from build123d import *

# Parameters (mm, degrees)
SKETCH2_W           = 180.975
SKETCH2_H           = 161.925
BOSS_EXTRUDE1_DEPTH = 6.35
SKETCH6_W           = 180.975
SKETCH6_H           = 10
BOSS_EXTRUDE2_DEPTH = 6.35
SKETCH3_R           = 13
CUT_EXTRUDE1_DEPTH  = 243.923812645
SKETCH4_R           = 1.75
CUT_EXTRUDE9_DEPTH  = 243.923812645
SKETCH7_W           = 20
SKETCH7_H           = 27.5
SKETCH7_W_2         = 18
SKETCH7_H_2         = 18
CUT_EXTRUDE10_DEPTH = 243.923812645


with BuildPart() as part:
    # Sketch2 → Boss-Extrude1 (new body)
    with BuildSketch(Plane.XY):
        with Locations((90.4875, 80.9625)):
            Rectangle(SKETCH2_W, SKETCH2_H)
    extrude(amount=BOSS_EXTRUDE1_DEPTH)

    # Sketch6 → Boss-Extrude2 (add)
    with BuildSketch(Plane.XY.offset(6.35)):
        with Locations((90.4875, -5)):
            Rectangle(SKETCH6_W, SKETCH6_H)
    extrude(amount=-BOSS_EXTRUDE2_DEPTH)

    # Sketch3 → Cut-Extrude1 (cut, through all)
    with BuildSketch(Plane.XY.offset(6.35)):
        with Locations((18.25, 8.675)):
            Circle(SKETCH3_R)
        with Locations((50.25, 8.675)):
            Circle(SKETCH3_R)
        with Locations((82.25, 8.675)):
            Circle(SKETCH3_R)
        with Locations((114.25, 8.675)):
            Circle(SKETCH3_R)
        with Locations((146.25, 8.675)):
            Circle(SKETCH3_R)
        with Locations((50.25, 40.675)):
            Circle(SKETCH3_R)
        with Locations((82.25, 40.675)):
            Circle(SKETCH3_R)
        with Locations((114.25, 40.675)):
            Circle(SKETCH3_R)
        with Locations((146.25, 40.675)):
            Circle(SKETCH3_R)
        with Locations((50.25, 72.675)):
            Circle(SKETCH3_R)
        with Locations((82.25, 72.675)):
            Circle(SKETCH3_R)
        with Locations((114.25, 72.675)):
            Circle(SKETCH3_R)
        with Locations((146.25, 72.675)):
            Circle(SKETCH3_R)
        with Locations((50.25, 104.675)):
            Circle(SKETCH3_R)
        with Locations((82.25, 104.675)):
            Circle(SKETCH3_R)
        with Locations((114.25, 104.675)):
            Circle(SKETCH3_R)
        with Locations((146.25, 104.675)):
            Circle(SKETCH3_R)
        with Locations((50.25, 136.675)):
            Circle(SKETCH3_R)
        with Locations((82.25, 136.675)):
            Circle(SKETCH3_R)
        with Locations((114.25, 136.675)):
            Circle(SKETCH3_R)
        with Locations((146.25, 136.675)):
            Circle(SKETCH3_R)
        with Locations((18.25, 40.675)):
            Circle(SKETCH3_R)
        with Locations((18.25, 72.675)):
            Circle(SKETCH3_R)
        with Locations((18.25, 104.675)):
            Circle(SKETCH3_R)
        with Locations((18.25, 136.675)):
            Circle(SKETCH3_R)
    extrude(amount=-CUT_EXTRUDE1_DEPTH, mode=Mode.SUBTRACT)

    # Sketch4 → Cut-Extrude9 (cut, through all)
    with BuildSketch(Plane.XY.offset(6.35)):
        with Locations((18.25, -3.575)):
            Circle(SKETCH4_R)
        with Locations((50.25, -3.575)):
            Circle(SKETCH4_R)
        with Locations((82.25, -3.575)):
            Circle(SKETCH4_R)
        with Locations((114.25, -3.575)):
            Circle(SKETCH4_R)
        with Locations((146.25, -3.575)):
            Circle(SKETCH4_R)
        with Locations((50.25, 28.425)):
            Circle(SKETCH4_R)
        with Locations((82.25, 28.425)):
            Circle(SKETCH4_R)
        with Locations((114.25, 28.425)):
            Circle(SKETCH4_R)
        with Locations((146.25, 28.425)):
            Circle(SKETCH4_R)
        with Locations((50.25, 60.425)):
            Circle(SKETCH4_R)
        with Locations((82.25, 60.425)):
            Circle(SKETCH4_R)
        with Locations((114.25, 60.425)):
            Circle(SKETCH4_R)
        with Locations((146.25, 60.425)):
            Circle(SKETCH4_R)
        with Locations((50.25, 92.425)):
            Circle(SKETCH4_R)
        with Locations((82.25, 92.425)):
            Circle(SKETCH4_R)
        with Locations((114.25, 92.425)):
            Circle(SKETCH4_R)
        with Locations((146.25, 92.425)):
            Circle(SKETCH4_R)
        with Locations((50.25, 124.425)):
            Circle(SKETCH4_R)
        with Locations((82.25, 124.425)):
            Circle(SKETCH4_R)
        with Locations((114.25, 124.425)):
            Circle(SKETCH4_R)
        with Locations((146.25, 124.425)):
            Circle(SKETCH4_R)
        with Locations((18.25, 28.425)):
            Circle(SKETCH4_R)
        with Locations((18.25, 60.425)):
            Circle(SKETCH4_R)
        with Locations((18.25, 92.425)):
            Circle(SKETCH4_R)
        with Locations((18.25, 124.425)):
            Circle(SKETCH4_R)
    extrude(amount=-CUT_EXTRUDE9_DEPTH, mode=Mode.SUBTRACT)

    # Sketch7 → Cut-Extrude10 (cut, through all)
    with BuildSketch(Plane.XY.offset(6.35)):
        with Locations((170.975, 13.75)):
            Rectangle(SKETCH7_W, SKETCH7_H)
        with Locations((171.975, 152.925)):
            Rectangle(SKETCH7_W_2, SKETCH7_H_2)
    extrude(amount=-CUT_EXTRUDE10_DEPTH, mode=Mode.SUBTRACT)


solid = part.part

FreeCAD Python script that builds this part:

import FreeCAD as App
import Part
import Sketcher

doc = App.newDocument("Part")
body = doc.addObject("PartDesign::Body", "Body")

# Sketch on XY plane
sketch1 = body.newObject("Sketcher::SketchObject", "Sketch")
sketch1.AttachmentSupport = (doc.getObject("XY_Plane"), [""])
sketch1.MapMode = "FlatFace"
sketch1.addGeometry(Part.LineSegment(App.Vector(0, 162, 0), App.Vector(0, 0, 0)), False)
sketch1.addGeometry(Part.LineSegment(App.Vector(0, 0, 0), App.Vector(181, 0, 0)), False)
sketch1.addGeometry(Part.LineSegment(App.Vector(181, 0, 0), App.Vector(181, 162, 0)), False)
sketch1.addGeometry(Part.LineSegment(App.Vector(181, 162, 0), App.Vector(0, 162, 0)), False)
sketch1.addConstraint(Sketcher.Constraint("Coincident", 0, 2, 1, 1))
sketch1.addConstraint(Sketcher.Constraint("Coincident", 1, 2, 2, 1))
sketch1.addConstraint(Sketcher.Constraint("Coincident", 2, 2, 3, 1))
sketch1.addConstraint(Sketcher.Constraint("Coincident", 3, 2, 0, 1))
sketch1.addConstraint(Sketcher.Constraint("Vertical", 0))
sketch1.addConstraint(Sketcher.Constraint("Horizontal", 1))
sketch1.addConstraint(Sketcher.Constraint("Vertical", 2))
sketch1.addConstraint(Sketcher.Constraint("Horizontal", 3))
sketch1.addConstraint(Sketcher.Constraint("Coincident", 0, 2, -1, 1))
sketch1.addConstraint(Sketcher.Constraint("DistanceX", 1, 1, 1, 2, 180.975))
sketch1.addConstraint(Sketcher.Constraint("DistanceY", 0, 2, 0, 1, 161.925))
pad1 = body.newObject("PartDesign::Pad", "Pad")
pad1.Profile = sketch1
pad1.Length = 6.35

# Sketch on XY plane
sketch2 = body.newObject("Sketcher::SketchObject", "Sketch001")
sketch2.AttachmentSupport = (doc.getObject("XY_Plane"), [""])
sketch2.MapMode = "FlatFace"
sketch2.AttachmentOffset = App.Placement(App.Vector(0, 0, 6.35), App.Rotation())
sketch2.addGeometry(Part.LineSegment(App.Vector(0, 0, 0), App.Vector(0, -10, 0)), False)
sketch2.addGeometry(Part.LineSegment(App.Vector(0, -10, 0), App.Vector(181, -10, 0)), False)
sketch2.addGeometry(Part.LineSegment(App.Vector(181, -10, 0), App.Vector(181, 0, 0)), False)
sketch2.addGeometry(Part.LineSegment(App.Vector(181, 0, 0), App.Vector(0, 0, 0)), False)
sketch2.addConstraint(Sketcher.Constraint("Coincident", 0, 2, 1, 1))
sketch2.addConstraint(Sketcher.Constraint("Coincident", 1, 2, 2, 1))
sketch2.addConstraint(Sketcher.Constraint("Coincident", 2, 2, 3, 1))
sketch2.addConstraint(Sketcher.Constraint("Coincident", 3, 2, 0, 1))
sketch2.addConstraint(Sketcher.Constraint("Vertical", 0))
sketch2.addConstraint(Sketcher.Constraint("Horizontal", 1))
sketch2.addConstraint(Sketcher.Constraint("Vertical", 2))
sketch2.addConstraint(Sketcher.Constraint("Horizontal", 3))
sketch2.addConstraint(Sketcher.Constraint("Coincident", 3, 2, -1, 1))
sketch2.addConstraint(Sketcher.Constraint("DistanceY", 0, 2, 0, 1, 10.0))
sketch2.addConstraint(Sketcher.Constraint("DistanceX", 1, 1, 1, 2, 180.975))
pad2 = body.newObject("PartDesign::Pad", "Pad001")
pad2.Profile = sketch2
pad2.Length = 6.35
pad2.Reversed = True

# Sketch on XY plane
sketch3 = body.newObject("Sketcher::SketchObject", "Sketch002")
sketch3.AttachmentSupport = (doc.getObject("XY_Plane"), [""])
sketch3.MapMode = "FlatFace"
sketch3.AttachmentOffset = App.Placement(App.Vector(0, 0, 6.35), App.Rotation())
sketch3.addGeometry(Part.Circle(App.Vector(18, 9, 0), App.Vector(0, 0, 1), 13), False)
sketch3.addGeometry(Part.Circle(App.Vector(50, 9, 0), App.Vector(0, 0, 1), 13), False)
sketch3.addGeometry(Part.Circle(App.Vector(82, 9, 0), App.Vector(0, 0, 1), 13), False)
sketch3.addGeometry(Part.Circle(App.Vector(114, 9, 0), App.Vector(0, 0, 1), 13), False)
sketch3.addGeometry(Part.Circle(App.Vector(146, 9, 0), App.Vector(0, 0, 1), 13), False)
sketch3.addGeometry(Part.Circle(App.Vector(50, 41, 0), App.Vector(0, 0, 1), 13), False)
sketch3.addGeometry(Part.Circle(App.Vector(82, 41, 0), App.Vector(0, 0, 1), 13), False)
sketch3.addGeometry(Part.Circle(App.Vector(114, 41, 0), App.Vector(0, 0, 1), 13), False)
sketch3.addGeometry(Part.Circle(App.Vector(146, 41, 0), App.Vector(0, 0, 1), 13), False)
sketch3.addGeometry(Part.Circle(App.Vector(50, 73, 0), App.Vector(0, 0, 1), 13), False)
sketch3.addGeometry(Part.Circle(App.Vector(82, 73, 0), App.Vector(0, 0, 1), 13), False)
sketch3.addGeometry(Part.Circle(App.Vector(114, 73, 0), App.Vector(0, 0, 1), 13), False)
sketch3.addGeometry(Part.Circle(App.Vector(146, 73, 0), App.Vector(0, 0, 1), 13), False)
sketch3.addGeometry(Part.Circle(App.Vector(50, 105, 0), App.Vector(0, 0, 1), 13), False)
sketch3.addGeometry(Part.Circle(App.Vector(82, 105, 0), App.Vector(0, 0, 1), 13), False)
sketch3.addGeometry(Part.Circle(App.Vector(114, 105, 0), App.Vector(0, 0, 1), 13), False)
sketch3.addGeometry(Part.Circle(App.Vector(146, 105, 0), App.Vector(0, 0, 1), 13), False)
sketch3.addGeometry(Part.Circle(App.Vector(50, 137, 0), App.Vector(0, 0, 1), 13), False)
sketch3.addGeometry(Part.Circle(App.Vector(82, 137, 0), App.Vector(0, 0, 1), 13), False)
sketch3.addGeometry(Part.Circle(App.Vector(114, 137, 0), App.Vector(0, 0, 1), 13), False)
sketch3.addGeometry(Part.Circle(App.Vector(146, 137, 0), App.Vector(0, 0, 1), 13), False)
sketch3.addGeometry(Part.Circle(App.Vector(18, 41, 0), App.Vector(0, 0, 1), 13), False)
sketch3.addGeometry(Part.Circle(App.Vector(18, 73, 0), App.Vector(0, 0, 1), 13), False)
sketch3.addGeometry(Part.Circle(App.Vector(18, 105, 0), App.Vector(0, 0, 1), 13), False)
sketch3.addGeometry(Part.Circle(App.Vector(18, 137, 0), App.Vector(0, 0, 1), 13), False)
sketch3.addConstraint(Sketcher.Constraint("Equal", 0, 1))
sketch3.addConstraint(Sketcher.Constraint("Equal", 1, 2))
sketch3.addConstraint(Sketcher.Constraint("Equal", 2, 3))
sketch3.addConstraint(Sketcher.Constraint("Equal", 3, 4))
sketch3.addConstraint(Sketcher.Constraint("Equal", 4, 5))
sketch3.addConstraint(Sketcher.Constraint("Equal", 5, 6))
sketch3.addConstraint(Sketcher.Constraint("Equal", 6, 7))
sketch3.addConstraint(Sketcher.Constraint("Equal", 7, 8))
sketch3.addConstraint(Sketcher.Constraint("Equal", 8, 9))
sketch3.addConstraint(Sketcher.Constraint("Equal", 9, 10))
sketch3.addConstraint(Sketcher.Constraint("Equal", 10, 11))
sketch3.addConstraint(Sketcher.Constraint("Equal", 11, 12))
sketch3.addConstraint(Sketcher.Constraint("Equal", 12, 13))
sketch3.addConstraint(Sketcher.Constraint("Equal", 13, 14))
sketch3.addConstraint(Sketcher.Constraint("Equal", 14, 15))
sketch3.addConstraint(Sketcher.Constraint("Equal", 15, 16))
sketch3.addConstraint(Sketcher.Constraint("Equal", 16, 17))
sketch3.addConstraint(Sketcher.Constraint("Equal", 17, 18))
sketch3.addConstraint(Sketcher.Constraint("Equal", 18, 19))
sketch3.addConstraint(Sketcher.Constraint("Equal", 19, 20))
sketch3.addConstraint(Sketcher.Constraint("Equal", 20, 21))
sketch3.addConstraint(Sketcher.Constraint("Equal", 21, 22))
sketch3.addConstraint(Sketcher.Constraint("Equal", 22, 23))
sketch3.addConstraint(Sketcher.Constraint("Equal", 23, 24))
sketch3.addConstraint(Sketcher.Constraint("Horizontal", 0, 3, 1, 3))
sketch3.addConstraint(Sketcher.Constraint("Horizontal", 1, 3, 2, 3))
sketch3.addConstraint(Sketcher.Constraint("Horizontal", 2, 3, 3, 3))
sketch3.addConstraint(Sketcher.Constraint("Horizontal", 3, 3, 4, 3))
sketch3.addConstraint(Sketcher.Constraint("Horizontal", 5, 3, 6, 3))
sketch3.addConstraint(Sketcher.Constraint("Horizontal", 6, 3, 7, 3))
sketch3.addConstraint(Sketcher.Constraint("Horizontal", 7, 3, 8, 3))
sketch3.addConstraint(Sketcher.Constraint("Horizontal", 9, 3, 10, 3))
sketch3.addConstraint(Sketcher.Constraint("Horizontal", 10, 3, 11, 3))
sketch3.addConstraint(Sketcher.Constraint("Horizontal", 11, 3, 12, 3))
sketch3.addConstraint(Sketcher.Constraint("Horizontal", 13, 3, 14, 3))
sketch3.addConstraint(Sketcher.Constraint("Horizontal", 14, 3, 15, 3))
sketch3.addConstraint(Sketcher.Constraint("Horizontal", 15, 3, 16, 3))
sketch3.addConstraint(Sketcher.Constraint("Horizontal", 17, 3, 18, 3))
sketch3.addConstraint(Sketcher.Constraint("Horizontal", 18, 3, 19, 3))
sketch3.addConstraint(Sketcher.Constraint("Horizontal", 19, 3, 20, 3))
sketch3.addConstraint(Sketcher.Constraint("Horizontal", 8, 3, 21, 3))
sketch3.addConstraint(Sketcher.Constraint("Horizontal", 12, 3, 22, 3))
sketch3.addConstraint(Sketcher.Constraint("Horizontal", 16, 3, 23, 3))
sketch3.addConstraint(Sketcher.Constraint("Horizontal", 20, 3, 24, 3))
sketch3.addConstraint(Sketcher.Constraint("Vertical", 1, 3, 5, 3))
sketch3.addConstraint(Sketcher.Constraint("Vertical", 2, 3, 6, 3))
sketch3.addConstraint(Sketcher.Constraint("Vertical", 3, 3, 7, 3))
sketch3.addConstraint(Sketcher.Constraint("Vertical", 4, 3, 8, 3))
sketch3.addConstraint(Sketcher.Constraint("Vertical", 5, 3, 9, 3))
sketch3.addConstraint(Sketcher.Constraint("Vertical", 6, 3, 10, 3))
sketch3.addConstraint(Sketcher.Constraint("Vertical", 7, 3, 11, 3))
sketch3.addConstraint(Sketcher.Constraint("Vertical", 8, 3, 12, 3))
sketch3.addConstraint(Sketcher.Constraint("Vertical", 9, 3, 13, 3))
sketch3.addConstraint(Sketcher.Constraint("Vertical", 10, 3, 14, 3))
sketch3.addConstraint(Sketcher.Constraint("Vertical", 11, 3, 15, 3))
sketch3.addConstraint(Sketcher.Constraint("Vertical", 12, 3, 16, 3))
sketch3.addConstraint(Sketcher.Constraint("Vertical", 13, 3, 17, 3))
sketch3.addConstraint(Sketcher.Constraint("Vertical", 14, 3, 18, 3))
sketch3.addConstraint(Sketcher.Constraint("Vertical", 15, 3, 19, 3))
sketch3.addConstraint(Sketcher.Constraint("Vertical", 16, 3, 20, 3))
sketch3.addConstraint(Sketcher.Constraint("Vertical", 0, 3, 21, 3))
sketch3.addConstraint(Sketcher.Constraint("Vertical", 21, 3, 22, 3))
sketch3.addConstraint(Sketcher.Constraint("Vertical", 22, 3, 23, 3))
sketch3.addConstraint(Sketcher.Constraint("Vertical", 23, 3, 24, 3))
sketch3.addConstraint(Sketcher.Constraint("Diameter", 0, 26.0))
sketch3.addConstraint(Sketcher.Constraint("DistanceX", 0, 3, 1, 3, 32.0))
sketch3.addConstraint(Sketcher.Constraint("DistanceX", 1, 3, 2, 3, 32.0))
sketch3.addConstraint(Sketcher.Constraint("DistanceX", 2, 3, 3, 3, 32.0))
sketch3.addConstraint(Sketcher.Constraint("DistanceX", 3, 3, 4, 3, 32.0))
sketch3.addConstraint(Sketcher.Constraint("DistanceY", 1, 3, 5, 3, 32.0))
sketch3.addConstraint(Sketcher.Constraint("DistanceY", 5, 3, 9, 3, 32.0))
sketch3.addConstraint(Sketcher.Constraint("DistanceY", 9, 3, 13, 3, 32.0))
sketch3.addConstraint(Sketcher.Constraint("DistanceY", 13, 3, 17, 3, 32.0))
sketch3.addConstraint(Sketcher.Constraint("DistanceX", -1, 1, 0, 3, 18.25))
sketch3.addConstraint(Sketcher.Constraint("DistanceY", -1, 1, 0, 3, 8.675))
pocket1 = body.newObject("PartDesign::Pocket", "Pocket")
pocket1.Profile = sketch3
pocket1.Type = "ThroughAll"

# Sketch on XY plane
sketch4 = body.newObject("Sketcher::SketchObject", "Sketch003")
sketch4.AttachmentSupport = (doc.getObject("XY_Plane"), [""])
sketch4.MapMode = "FlatFace"
sketch4.AttachmentOffset = App.Placement(App.Vector(0, 0, 6.35), App.Rotation())
sketch4.addGeometry(Part.Circle(App.Vector(18.2, -3.6, 0), App.Vector(0, 0, 1), 1.8), False)
sketch4.addGeometry(Part.Circle(App.Vector(50.2, -3.6, 0), App.Vector(0, 0, 1), 1.8), False)
sketch4.addGeometry(Part.Circle(App.Vector(82.2, -3.6, 0), App.Vector(0, 0, 1), 1.8), False)
sketch4.addGeometry(Part.Circle(App.Vector(114.2, -3.6, 0), App.Vector(0, 0, 1), 1.8), False)
sketch4.addGeometry(Part.Circle(App.Vector(146.2, -3.6, 0), App.Vector(0, 0, 1), 1.8), False)
sketch4.addGeometry(Part.Circle(App.Vector(50.2, 28.4, 0), App.Vector(0, 0, 1), 1.8), False)
sketch4.addGeometry(Part.Circle(App.Vector(82.2, 28.4, 0), App.Vector(0, 0, 1), 1.8), False)
sketch4.addGeometry(Part.Circle(App.Vector(114.2, 28.4, 0), App.Vector(0, 0, 1), 1.8), False)
sketch4.addGeometry(Part.Circle(App.Vector(146.2, 28.4, 0), App.Vector(0, 0, 1), 1.8), False)
sketch4.addGeometry(Part.Circle(App.Vector(50.2, 60.4, 0), App.Vector(0, 0, 1), 1.8), False)
sketch4.addGeometry(Part.Circle(App.Vector(82.2, 60.4, 0), App.Vector(0, 0, 1), 1.8), False)
sketch4.addGeometry(Part.Circle(App.Vector(114.2, 60.4, 0), App.Vector(0, 0, 1), 1.8), False)
sketch4.addGeometry(Part.Circle(App.Vector(146.2, 60.4, 0), App.Vector(0, 0, 1), 1.8), False)
sketch4.addGeometry(Part.Circle(App.Vector(50.2, 92.4, 0), App.Vector(0, 0, 1), 1.8), False)
sketch4.addGeometry(Part.Circle(App.Vector(82.2, 92.4, 0), App.Vector(0, 0, 1), 1.8), False)
sketch4.addGeometry(Part.Circle(App.Vector(114.2, 92.4, 0), App.Vector(0, 0, 1), 1.8), False)
sketch4.addGeometry(Part.Circle(App.Vector(146.2, 92.4, 0), App.Vector(0, 0, 1), 1.8), False)
sketch4.addGeometry(Part.Circle(App.Vector(50.2, 124.4, 0), App.Vector(0, 0, 1), 1.8), False)
sketch4.addGeometry(Part.Circle(App.Vector(82.2, 124.4, 0), App.Vector(0, 0, 1), 1.8), False)
sketch4.addGeometry(Part.Circle(App.Vector(114.2, 124.4, 0), App.Vector(0, 0, 1), 1.8), False)
sketch4.addGeometry(Part.Circle(App.Vector(146.2, 124.4, 0), App.Vector(0, 0, 1), 1.8), False)
sketch4.addGeometry(Part.Circle(App.Vector(18.2, 28.4, 0), App.Vector(0, 0, 1), 1.8), False)
sketch4.addGeometry(Part.Circle(App.Vector(18.2, 60.4, 0), App.Vector(0, 0, 1), 1.8), False)
sketch4.addGeometry(Part.Circle(App.Vector(18.2, 92.4, 0), App.Vector(0, 0, 1), 1.8), False)
sketch4.addGeometry(Part.Circle(App.Vector(18.2, 124.4, 0), App.Vector(0, 0, 1), 1.8), False)
sketch4.addConstraint(Sketcher.Constraint("Equal", 0, 1))
sketch4.addConstraint(Sketcher.Constraint("Equal", 1, 2))
sketch4.addConstraint(Sketcher.Constraint("Equal", 2, 3))
sketch4.addConstraint(Sketcher.Constraint("Equal", 3, 4))
sketch4.addConstraint(Sketcher.Constraint("Equal", 4, 5))
sketch4.addConstraint(Sketcher.Constraint("Equal", 5, 6))
sketch4.addConstraint(Sketcher.Constraint("Equal", 6, 7))
sketch4.addConstraint(Sketcher.Constraint("Equal", 7, 8))
sketch4.addConstraint(Sketcher.Constraint("Equal", 8, 9))
sketch4.addConstraint(Sketcher.Constraint("Equal", 9, 10))
sketch4.addConstraint(Sketcher.Constraint("Equal", 10, 11))
sketch4.addConstraint(Sketcher.Constraint("Equal", 11, 12))
sketch4.addConstraint(Sketcher.Constraint("Equal", 12, 13))
sketch4.addConstraint(Sketcher.Constraint("Equal", 13, 14))
sketch4.addConstraint(Sketcher.Constraint("Equal", 14, 15))
sketch4.addConstraint(Sketcher.Constraint("Equal", 15, 16))
sketch4.addConstraint(Sketcher.Constraint("Equal", 16, 17))
sketch4.addConstraint(Sketcher.Constraint("Equal", 17, 18))
sketch4.addConstraint(Sketcher.Constraint("Equal", 18, 19))
sketch4.addConstraint(Sketcher.Constraint("Equal", 19, 20))
sketch4.addConstraint(Sketcher.Constraint("Equal", 20, 21))
sketch4.addConstraint(Sketcher.Constraint("Equal", 21, 22))
sketch4.addConstraint(Sketcher.Constraint("Equal", 22, 23))
sketch4.addConstraint(Sketcher.Constraint("Equal", 23, 24))
sketch4.addConstraint(Sketcher.Constraint("Horizontal", 0, 3, 1, 3))
sketch4.addConstraint(Sketcher.Constraint("Horizontal", 1, 3, 2, 3))
sketch4.addConstraint(Sketcher.Constraint("Horizontal", 2, 3, 3, 3))
sketch4.addConstraint(Sketcher.Constraint("Horizontal", 3, 3, 4, 3))
sketch4.addConstraint(Sketcher.Constraint("Horizontal", 5, 3, 6, 3))
sketch4.addConstraint(Sketcher.Constraint("Horizontal", 6, 3, 7, 3))
sketch4.addConstraint(Sketcher.Constraint("Horizontal", 7, 3, 8, 3))
sketch4.addConstraint(Sketcher.Constraint("Horizontal", 9, 3, 10, 3))
sketch4.addConstraint(Sketcher.Constraint("Horizontal", 10, 3, 11, 3))
sketch4.addConstraint(Sketcher.Constraint("Horizontal", 11, 3, 12, 3))
sketch4.addConstraint(Sketcher.Constraint("Horizontal", 13, 3, 14, 3))
sketch4.addConstraint(Sketcher.Constraint("Horizontal", 14, 3, 15, 3))
sketch4.addConstraint(Sketcher.Constraint("Horizontal", 15, 3, 16, 3))
sketch4.addConstraint(Sketcher.Constraint("Horizontal", 17, 3, 18, 3))
sketch4.addConstraint(Sketcher.Constraint("Horizontal", 18, 3, 19, 3))
sketch4.addConstraint(Sketcher.Constraint("Horizontal", 19, 3, 20, 3))
sketch4.addConstraint(Sketcher.Constraint("Horizontal", 8, 3, 21, 3))
sketch4.addConstraint(Sketcher.Constraint("Horizontal", 12, 3, 22, 3))
sketch4.addConstraint(Sketcher.Constraint("Horizontal", 16, 3, 23, 3))
sketch4.addConstraint(Sketcher.Constraint("Horizontal", 20, 3, 24, 3))
sketch4.addConstraint(Sketcher.Constraint("Vertical", 1, 3, 5, 3))
sketch4.addConstraint(Sketcher.Constraint("Vertical", 2, 3, 6, 3))
sketch4.addConstraint(Sketcher.Constraint("Vertical", 3, 3, 7, 3))
sketch4.addConstraint(Sketcher.Constraint("Vertical", 4, 3, 8, 3))
sketch4.addConstraint(Sketcher.Constraint("Vertical", 5, 3, 9, 3))
sketch4.addConstraint(Sketcher.Constraint("Vertical", 6, 3, 10, 3))
sketch4.addConstraint(Sketcher.Constraint("Vertical", 7, 3, 11, 3))
sketch4.addConstraint(Sketcher.Constraint("Vertical", 8, 3, 12, 3))
sketch4.addConstraint(Sketcher.Constraint("Vertical", 9, 3, 13, 3))
sketch4.addConstraint(Sketcher.Constraint("Vertical", 10, 3, 14, 3))
sketch4.addConstraint(Sketcher.Constraint("Vertical", 11, 3, 15, 3))
sketch4.addConstraint(Sketcher.Constraint("Vertical", 12, 3, 16, 3))
sketch4.addConstraint(Sketcher.Constraint("Vertical", 13, 3, 17, 3))
sketch4.addConstraint(Sketcher.Constraint("Vertical", 14, 3, 18, 3))
sketch4.addConstraint(Sketcher.Constraint("Vertical", 15, 3, 19, 3))
sketch4.addConstraint(Sketcher.Constraint("Vertical", 16, 3, 20, 3))
sketch4.addConstraint(Sketcher.Constraint("Vertical", 0, 3, 21, 3))
sketch4.addConstraint(Sketcher.Constraint("Vertical", 21, 3, 22, 3))
sketch4.addConstraint(Sketcher.Constraint("Vertical", 22, 3, 23, 3))
sketch4.addConstraint(Sketcher.Constraint("Vertical", 23, 3, 24, 3))
sketch4.addConstraint(Sketcher.Constraint("Diameter", 0, 3.5))
sketch4.addConstraint(Sketcher.Constraint("DistanceX", 0, 3, 1, 3, 32.0))
sketch4.addConstraint(Sketcher.Constraint("DistanceX", 1, 3, 2, 3, 32.0))
sketch4.addConstraint(Sketcher.Constraint("DistanceX", 2, 3, 3, 3, 32.0))
sketch4.addConstraint(Sketcher.Constraint("DistanceX", 3, 3, 4, 3, 32.0))
sketch4.addConstraint(Sketcher.Constraint("DistanceY", 1, 3, 5, 3, 32.0))
sketch4.addConstraint(Sketcher.Constraint("DistanceY", 5, 3, 9, 3, 32.0))
sketch4.addConstraint(Sketcher.Constraint("DistanceY", 9, 3, 13, 3, 32.0))
sketch4.addConstraint(Sketcher.Constraint("DistanceY", 13, 3, 17, 3, 32.0))
sketch4.addConstraint(Sketcher.Constraint("DistanceX", -1, 1, 0, 3, 18.25))
sketch4.addConstraint(Sketcher.Constraint("DistanceY", 0, 3, -1, 1, 3.575))
pocket2 = body.newObject("PartDesign::Pocket", "Pocket001")
pocket2.Profile = sketch4
pocket2.Type = "ThroughAll"

# Sketch on XY plane
sketch5 = body.newObject("Sketcher::SketchObject", "Sketch004")
sketch5.AttachmentSupport = (doc.getObject("XY_Plane"), [""])
sketch5.MapMode = "FlatFace"
sketch5.AttachmentOffset = App.Placement(App.Vector(0, 0, 6.35), App.Rotation())
sketch5.addGeometry(Part.LineSegment(App.Vector(161, 28, 0), App.Vector(161, 0, 0)), False)
sketch5.addGeometry(Part.LineSegment(App.Vector(161, 0, 0), App.Vector(181, 0, 0)), False)
sketch5.addGeometry(Part.LineSegment(App.Vector(181, 0, 0), App.Vector(181, 28, 0)), False)
sketch5.addGeometry(Part.LineSegment(App.Vector(181, 28, 0), App.Vector(161, 28, 0)), False)
sketch5.addGeometry(Part.LineSegment(App.Vector(163, 162, 0), App.Vector(163, 144, 0)), False)
sketch5.addGeometry(Part.LineSegment(App.Vector(163, 144, 0), App.Vector(181, 144, 0)), False)
sketch5.addGeometry(Part.LineSegment(App.Vector(181, 144, 0), App.Vector(181, 162, 0)), False)
sketch5.addGeometry(Part.LineSegment(App.Vector(181, 162, 0), App.Vector(163, 162, 0)), False)
sketch5.addConstraint(Sketcher.Constraint("Coincident", 0, 2, 1, 1))
sketch5.addConstraint(Sketcher.Constraint("Coincident", 1, 2, 2, 1))
sketch5.addConstraint(Sketcher.Constraint("Coincident", 2, 2, 3, 1))
sketch5.addConstraint(Sketcher.Constraint("Coincident", 3, 2, 0, 1))
sketch5.addConstraint(Sketcher.Constraint("Coincident", 4, 2, 5, 1))
sketch5.addConstraint(Sketcher.Constraint("Coincident", 5, 2, 6, 1))
sketch5.addConstraint(Sketcher.Constraint("Coincident", 6, 2, 7, 1))
sketch5.addConstraint(Sketcher.Constraint("Coincident", 7, 2, 4, 1))
sketch5.addConstraint(Sketcher.Constraint("Vertical", 0))
sketch5.addConstraint(Sketcher.Constraint("Horizontal", 1))
sketch5.addConstraint(Sketcher.Constraint("Vertical", 2))
sketch5.addConstraint(Sketcher.Constraint("Horizontal", 3))
sketch5.addConstraint(Sketcher.Constraint("Vertical", 4))
sketch5.addConstraint(Sketcher.Constraint("Horizontal", 5))
sketch5.addConstraint(Sketcher.Constraint("Vertical", 6))
sketch5.addConstraint(Sketcher.Constraint("Horizontal", 7))
sketch5.addConstraint(Sketcher.Constraint("PointOnObject", 0, 2, -1))
sketch5.addConstraint(Sketcher.Constraint("Vertical", 2, 2, 5, 2))
sketch5.addConstraint(Sketcher.Constraint("Equal", 7, 4))
sketch5.addConstraint(Sketcher.Constraint("DistanceX", 1, 1, 1, 2, 20.0))
sketch5.addConstraint(Sketcher.Constraint("DistanceX", 5, 1, 5, 2, 18.0))
sketch5.addConstraint(Sketcher.Constraint("DistanceY", 0, 2, 0, 1, 27.5))
sketch5.addConstraint(Sketcher.Constraint("DistanceX", -1, 1, 0, 2, 160.975))
sketch5.addConstraint(Sketcher.Constraint("DistanceY", -1, 1, 4, 2, 143.925))
pocket3 = body.newObject("PartDesign::Pocket", "Pocket002")
pocket3.Profile = sketch5
pocket3.Type = "ThroughAll"

doc.recompute()
